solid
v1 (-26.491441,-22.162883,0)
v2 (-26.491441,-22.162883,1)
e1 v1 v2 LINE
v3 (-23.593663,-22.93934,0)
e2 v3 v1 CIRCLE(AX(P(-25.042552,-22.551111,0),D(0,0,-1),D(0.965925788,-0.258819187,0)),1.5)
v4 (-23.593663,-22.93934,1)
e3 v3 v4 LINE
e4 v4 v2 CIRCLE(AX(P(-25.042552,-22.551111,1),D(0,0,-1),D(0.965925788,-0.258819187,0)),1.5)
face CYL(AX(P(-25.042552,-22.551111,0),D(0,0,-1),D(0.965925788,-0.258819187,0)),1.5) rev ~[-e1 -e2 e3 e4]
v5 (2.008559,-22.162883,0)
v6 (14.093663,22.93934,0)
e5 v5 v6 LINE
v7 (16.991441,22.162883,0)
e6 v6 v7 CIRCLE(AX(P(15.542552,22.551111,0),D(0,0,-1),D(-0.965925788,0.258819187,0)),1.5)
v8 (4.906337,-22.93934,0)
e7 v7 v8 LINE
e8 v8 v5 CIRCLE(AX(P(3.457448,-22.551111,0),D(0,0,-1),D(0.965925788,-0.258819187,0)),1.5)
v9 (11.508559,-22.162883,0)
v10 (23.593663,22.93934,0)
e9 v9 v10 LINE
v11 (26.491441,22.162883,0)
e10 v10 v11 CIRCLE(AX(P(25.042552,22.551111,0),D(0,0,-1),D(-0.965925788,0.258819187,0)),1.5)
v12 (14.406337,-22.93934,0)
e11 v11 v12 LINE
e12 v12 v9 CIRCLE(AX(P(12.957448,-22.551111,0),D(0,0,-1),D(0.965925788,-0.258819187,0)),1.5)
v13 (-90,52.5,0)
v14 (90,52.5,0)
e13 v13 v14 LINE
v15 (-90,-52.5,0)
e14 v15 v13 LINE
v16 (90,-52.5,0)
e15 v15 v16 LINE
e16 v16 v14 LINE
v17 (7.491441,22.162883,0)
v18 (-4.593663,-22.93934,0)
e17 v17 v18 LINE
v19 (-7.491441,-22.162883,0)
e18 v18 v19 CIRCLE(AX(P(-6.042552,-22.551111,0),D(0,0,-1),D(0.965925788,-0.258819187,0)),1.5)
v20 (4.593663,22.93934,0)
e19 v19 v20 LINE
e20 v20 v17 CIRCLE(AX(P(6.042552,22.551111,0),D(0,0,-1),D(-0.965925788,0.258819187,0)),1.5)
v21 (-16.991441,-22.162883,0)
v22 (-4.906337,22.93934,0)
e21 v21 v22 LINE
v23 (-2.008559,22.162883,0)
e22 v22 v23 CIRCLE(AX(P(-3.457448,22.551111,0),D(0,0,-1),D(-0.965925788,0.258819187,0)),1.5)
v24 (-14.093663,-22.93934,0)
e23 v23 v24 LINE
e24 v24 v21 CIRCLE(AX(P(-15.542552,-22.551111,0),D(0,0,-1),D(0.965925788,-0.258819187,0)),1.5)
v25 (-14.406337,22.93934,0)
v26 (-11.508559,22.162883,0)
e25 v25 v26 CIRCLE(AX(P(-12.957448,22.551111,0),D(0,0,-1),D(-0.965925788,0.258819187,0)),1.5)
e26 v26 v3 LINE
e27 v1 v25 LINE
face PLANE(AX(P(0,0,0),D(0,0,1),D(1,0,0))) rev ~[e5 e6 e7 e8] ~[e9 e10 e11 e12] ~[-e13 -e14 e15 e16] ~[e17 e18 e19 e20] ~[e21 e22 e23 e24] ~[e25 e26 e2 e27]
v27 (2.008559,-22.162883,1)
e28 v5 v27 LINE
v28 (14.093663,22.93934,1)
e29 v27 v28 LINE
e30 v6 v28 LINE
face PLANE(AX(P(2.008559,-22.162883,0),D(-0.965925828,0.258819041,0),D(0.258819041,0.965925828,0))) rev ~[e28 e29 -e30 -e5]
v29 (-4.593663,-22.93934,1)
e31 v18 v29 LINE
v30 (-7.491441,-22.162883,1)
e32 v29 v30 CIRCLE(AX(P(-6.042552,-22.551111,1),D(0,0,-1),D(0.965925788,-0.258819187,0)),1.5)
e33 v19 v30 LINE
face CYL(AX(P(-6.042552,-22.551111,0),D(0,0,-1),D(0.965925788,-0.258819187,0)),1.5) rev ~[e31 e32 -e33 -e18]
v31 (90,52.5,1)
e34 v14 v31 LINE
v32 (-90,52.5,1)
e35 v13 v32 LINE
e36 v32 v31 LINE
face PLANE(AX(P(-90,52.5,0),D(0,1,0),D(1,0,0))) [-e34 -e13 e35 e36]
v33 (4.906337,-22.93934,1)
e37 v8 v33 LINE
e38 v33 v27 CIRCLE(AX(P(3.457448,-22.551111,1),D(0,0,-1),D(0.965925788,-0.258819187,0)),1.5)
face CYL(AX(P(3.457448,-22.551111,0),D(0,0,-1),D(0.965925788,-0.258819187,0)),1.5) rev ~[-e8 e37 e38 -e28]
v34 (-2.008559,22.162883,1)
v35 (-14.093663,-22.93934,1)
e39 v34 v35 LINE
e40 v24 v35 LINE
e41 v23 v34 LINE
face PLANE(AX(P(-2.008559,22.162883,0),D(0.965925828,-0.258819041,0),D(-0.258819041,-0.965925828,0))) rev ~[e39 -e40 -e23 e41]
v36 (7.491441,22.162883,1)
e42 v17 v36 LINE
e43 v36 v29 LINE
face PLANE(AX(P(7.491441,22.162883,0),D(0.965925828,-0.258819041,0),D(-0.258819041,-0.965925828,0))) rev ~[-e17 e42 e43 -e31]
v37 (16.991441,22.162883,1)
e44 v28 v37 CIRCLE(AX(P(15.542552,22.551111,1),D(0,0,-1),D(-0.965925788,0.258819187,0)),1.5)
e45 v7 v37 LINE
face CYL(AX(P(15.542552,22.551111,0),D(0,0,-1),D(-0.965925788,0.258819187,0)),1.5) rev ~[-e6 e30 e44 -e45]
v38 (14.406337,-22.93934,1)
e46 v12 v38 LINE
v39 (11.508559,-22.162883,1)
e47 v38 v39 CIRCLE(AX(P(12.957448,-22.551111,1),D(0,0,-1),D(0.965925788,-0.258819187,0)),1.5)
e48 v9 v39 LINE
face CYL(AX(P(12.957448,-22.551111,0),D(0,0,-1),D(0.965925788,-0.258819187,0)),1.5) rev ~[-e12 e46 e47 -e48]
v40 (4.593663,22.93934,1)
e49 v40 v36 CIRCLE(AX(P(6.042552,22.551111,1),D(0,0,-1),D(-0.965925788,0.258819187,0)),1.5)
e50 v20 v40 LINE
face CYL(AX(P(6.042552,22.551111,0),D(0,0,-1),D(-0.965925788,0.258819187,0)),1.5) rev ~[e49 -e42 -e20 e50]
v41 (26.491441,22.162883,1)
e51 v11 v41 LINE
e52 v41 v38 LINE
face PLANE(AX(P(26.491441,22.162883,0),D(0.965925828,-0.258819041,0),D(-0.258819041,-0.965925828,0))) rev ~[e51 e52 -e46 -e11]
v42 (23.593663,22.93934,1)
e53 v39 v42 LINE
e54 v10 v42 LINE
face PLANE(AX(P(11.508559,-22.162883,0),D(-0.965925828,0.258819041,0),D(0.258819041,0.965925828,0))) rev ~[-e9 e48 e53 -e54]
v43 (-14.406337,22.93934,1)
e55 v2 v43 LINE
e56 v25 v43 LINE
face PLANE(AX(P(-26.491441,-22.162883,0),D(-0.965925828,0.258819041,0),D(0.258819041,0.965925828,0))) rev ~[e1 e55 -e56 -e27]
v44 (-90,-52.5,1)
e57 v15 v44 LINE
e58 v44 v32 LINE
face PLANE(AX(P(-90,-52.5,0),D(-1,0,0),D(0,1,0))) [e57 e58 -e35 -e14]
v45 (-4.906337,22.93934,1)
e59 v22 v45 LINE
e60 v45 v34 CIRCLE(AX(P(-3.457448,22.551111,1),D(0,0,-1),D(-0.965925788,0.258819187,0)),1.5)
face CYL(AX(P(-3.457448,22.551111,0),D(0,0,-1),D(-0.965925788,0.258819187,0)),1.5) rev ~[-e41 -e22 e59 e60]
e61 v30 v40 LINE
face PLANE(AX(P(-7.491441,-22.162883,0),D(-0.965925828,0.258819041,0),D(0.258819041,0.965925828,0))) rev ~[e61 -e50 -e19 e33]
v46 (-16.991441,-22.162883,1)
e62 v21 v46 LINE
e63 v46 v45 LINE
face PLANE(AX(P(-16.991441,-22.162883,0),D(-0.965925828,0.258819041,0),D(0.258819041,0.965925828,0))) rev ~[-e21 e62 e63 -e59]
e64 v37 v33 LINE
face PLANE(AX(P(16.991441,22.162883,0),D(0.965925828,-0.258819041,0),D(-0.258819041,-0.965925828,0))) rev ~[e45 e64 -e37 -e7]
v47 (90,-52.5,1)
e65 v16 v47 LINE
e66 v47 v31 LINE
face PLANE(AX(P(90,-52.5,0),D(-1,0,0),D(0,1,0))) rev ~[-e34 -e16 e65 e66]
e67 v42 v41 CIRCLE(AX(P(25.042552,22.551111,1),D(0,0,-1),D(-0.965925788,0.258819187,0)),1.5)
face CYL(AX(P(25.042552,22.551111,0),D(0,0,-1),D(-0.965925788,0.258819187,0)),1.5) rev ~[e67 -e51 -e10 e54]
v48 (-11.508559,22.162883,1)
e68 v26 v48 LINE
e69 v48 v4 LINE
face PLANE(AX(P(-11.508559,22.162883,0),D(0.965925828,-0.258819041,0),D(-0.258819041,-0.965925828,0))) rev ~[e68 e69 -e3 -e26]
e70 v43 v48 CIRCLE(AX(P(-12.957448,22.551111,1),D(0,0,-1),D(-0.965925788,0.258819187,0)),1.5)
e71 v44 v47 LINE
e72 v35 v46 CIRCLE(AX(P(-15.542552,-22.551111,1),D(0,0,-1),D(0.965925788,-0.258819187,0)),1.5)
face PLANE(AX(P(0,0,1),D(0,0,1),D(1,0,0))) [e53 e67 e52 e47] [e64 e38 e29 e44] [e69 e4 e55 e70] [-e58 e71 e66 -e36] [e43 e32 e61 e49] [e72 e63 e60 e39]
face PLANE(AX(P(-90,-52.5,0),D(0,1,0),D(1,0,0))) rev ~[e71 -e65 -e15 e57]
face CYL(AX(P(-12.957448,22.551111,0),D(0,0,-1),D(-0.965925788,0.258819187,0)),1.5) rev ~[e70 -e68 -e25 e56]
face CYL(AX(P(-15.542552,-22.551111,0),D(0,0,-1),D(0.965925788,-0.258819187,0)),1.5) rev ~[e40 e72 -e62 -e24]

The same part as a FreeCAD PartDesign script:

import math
import FreeCAD as App
import Part
import Sketcher
Q = App.Units.Quantity


def add_polygon(sketch, points):
    """Adds a closed chain of lines whose ends are joined by coincident constraints."""
    first, n = sketch.GeometryCount, len(points)
    for a, b in zip(points, points[1:] + points[:1]):
        sketch.addGeometry(Part.LineSegment(App.Vector(*a, 0), App.Vector(*b, 0)), False)
    for i in range(n):
        sketch.addConstraint(Sketcher.Constraint("Coincident", first + i, 2, first + (i + 1) % n, 1))

doc = App.newDocument("Part")
body = doc.addObject("PartDesign::Body", "Body")

sketch1 = doc.addObject("Sketcher::SketchObject", "Sketch")
body.addObject(sketch1)
sketch1.AttachmentSupport = (doc.XY_Plane, [""])
sketch1.MapMode = "FlatFace"
add_polygon(sketch1, [(-90, 52.5), (-90, -52.5), (90, -52.5), (90, 52.5)])
sketch1.addGeometry(Part.LineSegment(App.Vector(-11.5, 22.2, 0), App.Vector(-23.6, -22.9, 0)), False)
sketch1.addGeometry(Part.ArcOfCircle(Part.Circle(App.Vector(-25, -22.6, 0), App.Vector(0, 0, 1), 1.5), math.radians(165), math.radians(345)), False)
sketch1.addGeometry(Part.LineSegment(App.Vector(-26.5, -22.2, 0), App.Vector(-14.4, 22.9, 0)), False)
sketch1.addGeometry(Part.ArcOfCircle(Part.Circle(App.Vector(-13, 22.6, 0), App.Vector(0, 0, 1), 1.5), math.radians(-15), math.radians(165)), False)
sketch1.addGeometry(Part.LineSegment(App.Vector(-2, 22.2, 0), App.Vector(-14.1, -22.9, 0)), False)
sketch1.addGeometry(Part.ArcOfCircle(Part.Circle(App.Vector(-15.5, -22.6, 0), App.Vector(0, 0, 1), 1.5), math.radians(165), math.radians(345)), False)
sketch1.addGeometry(Part.LineSegment(App.Vector(-17, -22.2, 0), App.Vector(-4.9, 22.9, 0)), False)
sketch1.addGeometry(Part.ArcOfCircle(Part.Circle(App.Vector(-3.5, 22.6, 0), App.Vector(0, 0, 1), 1.5), math.radians(-15), math.radians(165)), False)
sketch1.addGeometry(Part.ArcOfCircle(Part.Circle(App.Vector(6, 22.6, 0), App.Vector(0, 0, 1), 1.5), math.radians(-15), math.radians(165)), False)
sketch1.addGeometry(Part.LineSegment(App.Vector(7.5, 22.2, 0), App.Vector(-4.6, -22.9, 0)), False)
sketch1.addGeometry(Part.ArcOfCircle(Part.Circle(App.Vector(-6, -22.6, 0), App.Vector(0, 0, 1), 1.5), math.radians(165), math.radians(345)), False)
sketch1.addGeometry(Part.LineSegment(App.Vector(-7.5, -22.2, 0), App.Vector(4.6, 22.9, 0)), False)
sketch1.addGeometry(Part.LineSegment(App.Vector(17, 22.2, 0), App.Vector(4.9, -22.9, 0)), False)
sketch1.addGeometry(Part.ArcOfCircle(Part.Circle(App.Vector(3.5, -22.6, 0), App.Vector(0, 0, 1), 1.5), math.radians(165), math.radians(345)), False)
sketch1.addGeometry(Part.LineSegment(App.Vector(2, -22.2, 0), App.Vector(14.1, 22.9, 0)), False)
sketch1.addGeometry(Part.ArcOfCircle(Part.Circle(App.Vector(15.5, 22.6, 0), App.Vector(0, 0, 1), 1.5), math.radians(-15), math.radians(165)), False)
sketch1.addGeometry(Part.LineSegment(App.Vector(26.5, 22.2, 0), App.Vector(14.4, -22.9, 0)), False)
sketch1.addGeometry(Part.ArcOfCircle(Part.Circle(App.Vector(13, -22.6, 0), App.Vector(0, 0, 1), 1.5), math.radians(165), math.radians(345)), False)
sketch1.addGeometry(Part.LineSegment(App.Vector(11.5, -22.2, 0), App.Vector(23.6, 22.9, 0)), False)
sketch1.addGeometry(Part.ArcOfCircle(Part.Circle(App.Vector(25, 22.6, 0), App.Vector(0, 0, 1), 1.5), math.radians(-15), math.radians(165)), False)
sketch1.addConstraint([
    Sketcher.Constraint("Tangent", 4, 2, 5, 2),
    Sketcher.Constraint("Tangent", 5, 1, 6, 1),
    Sketcher.Constraint("Tangent", 6, 2, 7, 2),
    Sketcher.Constraint("Tangent", 7, 1, 4, 1),
    Sketcher.Constraint("Tangent", 8, 2, 9, 2),
    Sketcher.Constraint("Tangent", 9, 1, 10, 1),
    Sketcher.Constraint("Tangent", 10, 2, 11, 2),
    Sketcher.Constraint("Tangent", 11, 1, 8, 1),
    Sketcher.Constraint("Tangent", 12, 1, 13, 1),
    Sketcher.Constraint("Tangent", 13, 2, 14, 2),
    Sketcher.Constraint("Tangent", 14, 1, 15, 1),
    Sketcher.Constraint("Tangent", 15, 2, 12, 2),
    Sketcher.Constraint("Tangent", 16, 2, 17, 2),
    Sketcher.Constraint("Tangent", 17, 1, 18, 1),
    Sketcher.Constraint("Tangent", 18, 2, 19, 2),
    Sketcher.Constraint("Tangent", 19, 1, 16, 1),
    Sketcher.Constraint("Tangent", 20, 2, 21, 2),
    Sketcher.Constraint("Tangent", 21, 1, 22, 1),
    Sketcher.Constraint("Tangent", 22, 2, 23, 2),
    Sketcher.Constraint("Tangent", 23, 1, 20, 1),
    Sketcher.Constraint("Vertical", 0),
    Sketcher.Constraint("Horizontal", 1),
    Sketcher.Constraint("Vertical", 2),
    Sketcher.Constraint("Horizontal", 3),
    Sketcher.Constraint("Equal", 5, 7),
    Sketcher.Constraint("Equal", 7, 9),
    Sketcher.Constraint("Equal", 9, 11),
    Sketcher.Constraint("Equal", 11, 12),
    Sketcher.Constraint("Equal", 12, 14),
    Sketcher.Constraint("Equal", 14, 17),
    Sketcher.Constraint("Equal", 17, 19),
    Sketcher.Constraint("Equal", 19, 21),
    Sketcher.Constraint("Equal", 21, 23),
    Sketcher.Constraint("Symmetric", 12, 3, 14, 3, -1, 1),
    Sketcher.Constraint("Symmetric", 11, 3, 17, 3, -1, 1),
    Sketcher.Constraint("Symmetric", 9, 3, 19, 3, -1, 1),
    Sketcher.Constraint("Symmetric", 7, 3, 21, 3, -1, 1),
    Sketcher.Constraint("Symmetric", 5, 3, 23, 3, -1, 1),
    Sketcher.Constraint("Symmetric", 0, 2, 2, 2, -1, 1),
    Sketcher.Constraint("Parallel", 6, 8),
    Sketcher.Constraint("Parallel", 10, 13),
    Sketcher.Constraint("Horizontal", 5, 3, 9, 3),
    Sketcher.Constraint("Horizontal", 7, 3, 11, 3),
    Sketcher.Constraint("Horizontal", 11, 3, 12, 3),
    Sketcher.Constraint("Horizontal", 9, 3, 14, 3),
    Sketcher.Constraint("Radius", 5, Q("1.5 mm")),
    Sketcher.Constraint("DistanceX", 1, 1, 1, 2, Q("180 mm")),
    Sketcher.Constraint("DistanceY", 0, 2, 0, 1, Q("105 mm")),
    Sketcher.Constraint("Angle", 4, Q("-105 deg")),
    Sketcher.Constraint("DistanceX", 7, 3, 12, 3, Q("19 mm")),
    Sketcher.Constraint("DistanceX", 9, 3, 17, 3, Q("19 mm")),
    Sketcher.Constraint("DistanceX", 5, 3, -1, 1, Q("25.042552 mm")),
])
pad1 = doc.addObject("PartDesign::Pad", "Pad")
body.addObject(pad1)
pad1.Profile = sketch1
pad1.Length = 1

doc.recompute()
